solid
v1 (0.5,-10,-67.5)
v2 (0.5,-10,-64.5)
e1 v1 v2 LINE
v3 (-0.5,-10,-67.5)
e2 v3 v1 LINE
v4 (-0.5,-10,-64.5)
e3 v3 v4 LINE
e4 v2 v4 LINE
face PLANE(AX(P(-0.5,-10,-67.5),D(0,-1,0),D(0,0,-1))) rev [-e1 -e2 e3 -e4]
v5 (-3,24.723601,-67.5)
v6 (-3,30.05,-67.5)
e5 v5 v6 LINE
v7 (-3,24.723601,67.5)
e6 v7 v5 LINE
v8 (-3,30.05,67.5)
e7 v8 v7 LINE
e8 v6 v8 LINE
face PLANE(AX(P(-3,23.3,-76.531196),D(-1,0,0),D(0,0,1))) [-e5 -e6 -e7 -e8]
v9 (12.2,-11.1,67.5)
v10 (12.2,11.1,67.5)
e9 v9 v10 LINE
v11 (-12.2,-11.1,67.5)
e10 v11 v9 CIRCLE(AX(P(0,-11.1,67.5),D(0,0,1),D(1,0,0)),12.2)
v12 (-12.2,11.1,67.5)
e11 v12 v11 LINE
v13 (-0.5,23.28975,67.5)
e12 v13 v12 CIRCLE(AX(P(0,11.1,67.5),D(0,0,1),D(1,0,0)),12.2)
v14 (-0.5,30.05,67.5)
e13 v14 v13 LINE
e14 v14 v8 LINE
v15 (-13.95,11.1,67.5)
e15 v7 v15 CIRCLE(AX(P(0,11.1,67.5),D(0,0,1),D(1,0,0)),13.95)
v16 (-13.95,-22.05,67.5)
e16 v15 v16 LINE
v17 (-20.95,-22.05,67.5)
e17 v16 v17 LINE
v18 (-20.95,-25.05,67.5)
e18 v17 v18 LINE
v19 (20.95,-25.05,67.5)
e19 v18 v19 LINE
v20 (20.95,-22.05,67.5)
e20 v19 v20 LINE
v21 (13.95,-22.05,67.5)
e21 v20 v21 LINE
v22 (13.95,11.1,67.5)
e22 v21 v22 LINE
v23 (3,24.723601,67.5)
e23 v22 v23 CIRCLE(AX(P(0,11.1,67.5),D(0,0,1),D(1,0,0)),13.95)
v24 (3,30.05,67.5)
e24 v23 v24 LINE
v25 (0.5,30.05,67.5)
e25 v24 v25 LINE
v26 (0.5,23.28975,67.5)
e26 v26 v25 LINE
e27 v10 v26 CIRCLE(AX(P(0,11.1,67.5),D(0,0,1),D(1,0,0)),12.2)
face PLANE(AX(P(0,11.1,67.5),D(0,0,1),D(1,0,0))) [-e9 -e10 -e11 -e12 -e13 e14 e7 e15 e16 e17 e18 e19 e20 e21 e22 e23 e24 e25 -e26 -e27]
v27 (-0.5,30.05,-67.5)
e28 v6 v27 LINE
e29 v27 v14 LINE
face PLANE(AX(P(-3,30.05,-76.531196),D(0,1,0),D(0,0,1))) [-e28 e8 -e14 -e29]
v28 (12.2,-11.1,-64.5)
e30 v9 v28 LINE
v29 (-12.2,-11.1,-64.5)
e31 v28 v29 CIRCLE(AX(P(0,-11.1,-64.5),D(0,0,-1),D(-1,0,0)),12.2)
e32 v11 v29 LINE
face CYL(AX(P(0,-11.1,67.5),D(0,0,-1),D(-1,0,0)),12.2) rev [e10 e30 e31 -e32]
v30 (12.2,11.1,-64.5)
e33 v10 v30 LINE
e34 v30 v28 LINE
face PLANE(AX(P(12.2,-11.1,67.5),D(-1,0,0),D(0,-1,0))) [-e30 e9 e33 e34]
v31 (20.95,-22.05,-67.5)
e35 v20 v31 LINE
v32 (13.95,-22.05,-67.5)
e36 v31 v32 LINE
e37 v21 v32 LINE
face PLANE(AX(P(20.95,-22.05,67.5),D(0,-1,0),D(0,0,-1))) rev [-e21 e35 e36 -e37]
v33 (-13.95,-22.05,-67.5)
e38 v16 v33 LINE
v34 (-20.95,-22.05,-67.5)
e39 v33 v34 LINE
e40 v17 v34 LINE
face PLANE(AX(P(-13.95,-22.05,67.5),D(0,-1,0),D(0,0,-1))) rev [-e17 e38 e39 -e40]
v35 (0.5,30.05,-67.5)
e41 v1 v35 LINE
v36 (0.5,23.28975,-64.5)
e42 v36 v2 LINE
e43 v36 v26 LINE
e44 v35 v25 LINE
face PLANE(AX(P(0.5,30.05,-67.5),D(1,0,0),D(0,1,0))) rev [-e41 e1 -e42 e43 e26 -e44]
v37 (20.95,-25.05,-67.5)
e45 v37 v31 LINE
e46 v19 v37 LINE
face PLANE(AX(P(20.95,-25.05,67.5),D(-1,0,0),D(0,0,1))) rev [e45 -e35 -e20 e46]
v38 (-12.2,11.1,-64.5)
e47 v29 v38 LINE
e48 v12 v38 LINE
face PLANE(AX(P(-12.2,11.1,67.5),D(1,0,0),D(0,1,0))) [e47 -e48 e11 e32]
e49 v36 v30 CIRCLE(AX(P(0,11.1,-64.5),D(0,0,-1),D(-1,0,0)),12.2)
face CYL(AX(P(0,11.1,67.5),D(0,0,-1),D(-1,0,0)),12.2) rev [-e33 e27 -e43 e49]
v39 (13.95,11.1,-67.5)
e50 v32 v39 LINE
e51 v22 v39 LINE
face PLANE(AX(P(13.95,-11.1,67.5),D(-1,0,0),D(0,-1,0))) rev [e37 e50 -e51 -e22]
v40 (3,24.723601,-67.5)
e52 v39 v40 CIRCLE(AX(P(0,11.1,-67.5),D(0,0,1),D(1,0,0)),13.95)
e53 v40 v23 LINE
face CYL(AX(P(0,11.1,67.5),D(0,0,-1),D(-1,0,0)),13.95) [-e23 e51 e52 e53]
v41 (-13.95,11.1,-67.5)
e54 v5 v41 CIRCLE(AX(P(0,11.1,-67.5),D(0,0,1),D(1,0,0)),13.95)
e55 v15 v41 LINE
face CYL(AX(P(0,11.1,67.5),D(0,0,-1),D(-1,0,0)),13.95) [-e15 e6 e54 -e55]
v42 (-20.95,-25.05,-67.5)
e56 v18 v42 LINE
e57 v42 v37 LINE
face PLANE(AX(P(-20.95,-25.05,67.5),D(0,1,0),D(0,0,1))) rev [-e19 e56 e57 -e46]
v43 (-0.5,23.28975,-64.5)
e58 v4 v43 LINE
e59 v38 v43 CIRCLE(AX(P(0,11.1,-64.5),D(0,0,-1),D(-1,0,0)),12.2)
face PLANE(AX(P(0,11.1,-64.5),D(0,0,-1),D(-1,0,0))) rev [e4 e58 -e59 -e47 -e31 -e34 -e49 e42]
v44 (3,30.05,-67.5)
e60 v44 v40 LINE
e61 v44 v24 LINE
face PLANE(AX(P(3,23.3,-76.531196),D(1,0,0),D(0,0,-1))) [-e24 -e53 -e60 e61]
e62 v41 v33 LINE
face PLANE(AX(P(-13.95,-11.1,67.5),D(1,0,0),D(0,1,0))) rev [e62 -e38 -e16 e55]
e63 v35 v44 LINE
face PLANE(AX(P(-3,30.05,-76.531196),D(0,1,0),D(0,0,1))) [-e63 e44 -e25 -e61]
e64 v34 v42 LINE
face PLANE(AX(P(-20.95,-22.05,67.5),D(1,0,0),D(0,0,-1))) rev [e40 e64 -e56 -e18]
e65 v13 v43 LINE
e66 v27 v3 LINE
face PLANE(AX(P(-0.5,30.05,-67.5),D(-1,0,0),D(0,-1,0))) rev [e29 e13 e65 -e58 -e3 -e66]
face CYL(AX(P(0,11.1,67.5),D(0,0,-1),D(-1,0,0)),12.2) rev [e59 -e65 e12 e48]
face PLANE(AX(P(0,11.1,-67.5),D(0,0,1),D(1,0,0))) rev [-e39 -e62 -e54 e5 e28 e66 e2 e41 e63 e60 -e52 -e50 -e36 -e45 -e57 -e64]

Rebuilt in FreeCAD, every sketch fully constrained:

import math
import FreeCAD as App
import Part
import Sketcher

V = App.Vector


def add_polygon(sketch, points):
    """Adds a closed chain of lines whose ends are joined by coincident constraints."""
    first, n = sketch.GeometryCount, len(points)
    for a, b in zip(points, points[1:] + points[:1]):
        sketch.addGeometry(Part.LineSegment(App.Vector(*a, 0), App.Vector(*b, 0)), False)
    for i in range(n):
        sketch.addConstraint(Sketcher.Constraint("Coincident", first + i, 2, first + (i + 1) % n, 1))

doc = App.newDocument("Part")
body = doc.addObject("PartDesign::Body", "Body")

sketch1 = body.newObject("Sketcher::SketchObject", "Sketch")
sketch1.AttachmentSupport = (doc.getObject("XY_Plane"), [""])
sketch1.MapMode = "FlatFace"
sketch1.addGeometry([
    Part.LineSegment(V(-13.95, 11.1, 0), V(-13.95, -22.05, 0)),
    Part.LineSegment(V(-13.95, -22.05, 0), V(-20.95, -22.05, 0)),
    Part.LineSegment(V(-20.95, -22.05, 0), V(-20.95, -25.05, 0)),
    Part.LineSegment(V(-20.95, -25.05, 0), V(20.95, -25.05, 0)),
    Part.LineSegment(V(20.95, -25.05, 0), V(20.95, -22.05, 0)),
    Part.LineSegment(V(20.95, -22.05, 0), V(13.95, -22.05, 0)),
    Part.LineSegment(V(13.95, -22.05, 0), V(13.95, 11.1, 0)),
    Part.ArcOfCircle(Part.Circle(V(0, 11.1, 0), V(0, 0, 1), 13.95), math.radians(0), math.radians(180)),
    Part.LineSegment(V(12.2, 11.1, 0), V(12.2, -11.1, 0)),
    Part.ArcOfCircle(Part.Circle(V(0, -11.1, 0), V(0, 0, 1), 12.2), math.radians(180), math.radians(360)),
    Part.LineSegment(V(-12.2, -11.1, 0), V(-12.2, 11.1, 0)),
    Part.ArcOfCircle(Part.Circle(V(0, 11.1, 0), V(0, 0, 1), 12.2), math.radians(0), math.radians(180)),
], False)
sketch1.addConstraint([
    Sketcher.Constraint("Coincident", 0, 2, 1, 1),
    Sketcher.Constraint("Coincident", 1, 2, 2, 1),
    Sketcher.Constraint("Coincident", 2, 2, 3, 1),
    Sketcher.Constraint("Coincident", 3, 2, 4, 1),
    Sketcher.Constraint("Coincident", 4, 2, 5, 1),
    Sketcher.Constraint("Coincident", 5, 2, 6, 1),
    Sketcher.Constraint("Tangent", 6, 2, 7, 1),
    Sketcher.Constraint("Tangent", 7, 2, 0, 1),
    Sketcher.Constraint("Tangent", 8, 2, 9, 2),
    Sketcher.Constraint("Tangent", 9, 1, 10, 1),
    Sketcher.Constraint("Tangent", 10, 2, 11, 2),
    Sketcher.Constraint("Tangent", 11, 1, 8, 1),
    Sketcher.Constraint("Vertical", 0),
    Sketcher.Constraint("Horizontal", 1),
    Sketcher.Constraint("Vertical", 2),
    Sketcher.Constraint("Horizontal", 3),
    Sketcher.Constraint("Vertical", 4),
    Sketcher.Constraint("Horizontal", 5),
    Sketcher.Constraint("Vertical", 6),
    Sketcher.Constraint("Vertical", 8),
    Sketcher.Constraint("Vertical", 10),
    Sketcher.Constraint("Coincident", 11, 3, 7, 3),
    Sketcher.Constraint("Symmetric", 7, 3, 9, 3, -1, 1),
    Sketcher.Constraint("Symmetric", 1, 2, 4, 2, -2),
    Sketcher.Constraint("Radius", 9, 12.2),
    Sketcher.Constraint("DistanceX", 1, 2, 1, 1, 7.0),
    Sketcher.Constraint("DistanceY", 2, 2, 2, 1, 3.0),
    Sketcher.Constraint("Radius", 7, 13.95),
    Sketcher.Constraint("DistanceY", 8, 2, 8, 1, 22.2),
    Sketcher.Constraint("DistanceY", 0, 2, 0, 1, 33.15),
])
pad1 = body.newObject("PartDesign::Pad", "Pad")
pad1.Profile = sketch1
pad1.Length = 135
pad1.Midplane = True

sketch2 = body.newObject("Sketcher::SketchObject", "Sketch001")
sketch2.AttachmentSupport = (doc.getObject("XY_Plane"), [""])
sketch2.MapMode = "FlatFace"
sketch2.AttachmentOffset = App.Placement(V(0, 0, -64.5), App.Rotation())
sketch2.addGeometry([
    Part.LineSegment(V(13.95, 11.1, 0), V(13.95, -22.05, 0)),
    Part.LineSegment(V(13.95, -22.05, 0), V(20.95, -22.05, 0)),
    Part.LineSegment(V(20.95, -22.05, 0), V(20.95, -25.05, 0)),
    Part.LineSegment(V(20.95, -25.05, 0), V(-20.95, -25.05, 0)),
    Part.LineSegment(V(-20.95, -25.05, 0), V(-20.95, -22.05, 0)),
    Part.LineSegment(V(-20.95, -22.05, 0), V(-13.95, -22.05, 0)),
    Part.LineSegment(V(-13.95, -22.05, 0), V(-13.95, 11.1, 0)),
    Part.ArcOfCircle(Part.Circle(V(0, 11.1, 0), V(0, 0, 1), 13.95), math.radians(0), math.radians(180)),
], False)
sketch2.addConstraint([
    Sketcher.Constraint("Coincident", 0, 2, 1, 1),
    Sketcher.Constraint("Coincident", 1, 2, 2, 1),
    Sketcher.Constraint("Coincident", 2, 2, 3, 1),
    Sketcher.Constraint("Coincident", 3, 2, 4, 1),
    Sketcher.Constraint("Coincident", 4, 2, 5, 1),
    Sketcher.Constraint("Coincident", 5, 2, 6, 1),
    Sketcher.Constraint("Tangent", 6, 2, 7, 2),
    Sketcher.Constraint("Tangent", 7, 1, 0, 1),
    Sketcher.Constraint("Vertical", 0),
    Sketcher.Constraint("Horizontal", 1),
    Sketcher.Constraint("Vertical", 2),
    Sketcher.Constraint("Horizontal", 3),
    Sketcher.Constraint("Vertical", 4),
    Sketcher.Constraint("Horizontal", 5),
    Sketcher.Constraint("Vertical", 6),
    Sketcher.Constraint("Symmetric", 1, 2, 4, 2, -2),
    Sketcher.Constraint("PointOnObject", 7, 3, -2),
    Sketcher.Constraint("DistanceX", 1, 1, 1, 2, 7.0),
    Sketcher.Constraint("DistanceY", 2, 2, 2, 1, 3.0),
    Sketcher.Constraint("Radius", 7, 13.95),
    Sketcher.Constraint("DistanceY", 0, 2, 0, 1, 33.15),
    Sketcher.Constraint("DistanceY", -1, 1, 7, 3, 11.1),
])
pad2 = body.newObject("PartDesign::Pad", "Pad001")
pad2.Profile = sketch2
pad2.Length = 3
pad2.Reversed = True

sketch3 = body.newObject("Sketcher::SketchObject", "Sketch002")
sketch3.AttachmentSupport = (doc.getObject("XY_Plane"), [""])
sketch3.MapMode = "FlatFace"
sketch3.AttachmentOffset = App.Placement(V(0, 0, 67.5), App.Rotation())
add_polygon(sketch3, [(-3, 30.05), (-3, 23.3), (3, 23.3), (3, 30.05)])
sketch3.addConstraint([
    Sketcher.Constraint("Vertical", 0),
    Sketcher.Constraint("Horizontal", 1),
    Sketcher.Constraint("Vertical", 2),
    Sketcher.Constraint("Horizontal", 3),
    Sketcher.Constraint("DistanceX", 1, 1, 1, 2, 6.0),
    Sketcher.Constraint("DistanceX", 0, 2, -1, 1, 3.0),
    Sketcher.Constraint("DistanceY", 0, 2, 0, 1, 6.75),
    Sketcher.Constraint("DistanceY", -1, 1, 0, 2, 23.3),
])
pad3 = body.newObject("PartDesign::Pad", "Pad002")
pad3.Profile = sketch3
pad3.Length = 135
pad3.Reversed = True

sketch4 = body.newObject("Sketcher::SketchObject", "Sketch003")
sketch4.AttachmentSupport = (doc.getObject("XY_Plane"), [""])
sketch4.MapMode = "FlatFace"
sketch4.AttachmentOffset = App.Placement(V(0, 0, 67.5), App.Rotation())
add_polygon(sketch4, [(-0.5, 30.05), (-0.5, -10), (0.5, -10), (0.5, 30.05)])
sketch4.addConstraint([
    Sketcher.Constraint("Vertical", 0),
    Sketcher.Constraint("Horizontal", 1),
    Sketcher.Constraint("Vertical", 2),
    Sketcher.Constraint("Horizontal", 3),
    Sketcher.Constraint("DistanceX", 1, 1, 1, 2, 1.0),
    Sketcher.Constraint("DistanceY", 0, 2, -1, 1, 10.0),
    Sketcher.Constraint("DistanceY", 0, 2, 0, 1, 40.05),
    Sketcher.Constraint("DistanceX", 0, 2, -1, 1, 0.5),
])
pocket1 = body.newObject("PartDesign::Pocket", "Pocket")
pocket1.Profile = sketch4
pocket1.Type = "ThroughAll"

doc.recompute()
